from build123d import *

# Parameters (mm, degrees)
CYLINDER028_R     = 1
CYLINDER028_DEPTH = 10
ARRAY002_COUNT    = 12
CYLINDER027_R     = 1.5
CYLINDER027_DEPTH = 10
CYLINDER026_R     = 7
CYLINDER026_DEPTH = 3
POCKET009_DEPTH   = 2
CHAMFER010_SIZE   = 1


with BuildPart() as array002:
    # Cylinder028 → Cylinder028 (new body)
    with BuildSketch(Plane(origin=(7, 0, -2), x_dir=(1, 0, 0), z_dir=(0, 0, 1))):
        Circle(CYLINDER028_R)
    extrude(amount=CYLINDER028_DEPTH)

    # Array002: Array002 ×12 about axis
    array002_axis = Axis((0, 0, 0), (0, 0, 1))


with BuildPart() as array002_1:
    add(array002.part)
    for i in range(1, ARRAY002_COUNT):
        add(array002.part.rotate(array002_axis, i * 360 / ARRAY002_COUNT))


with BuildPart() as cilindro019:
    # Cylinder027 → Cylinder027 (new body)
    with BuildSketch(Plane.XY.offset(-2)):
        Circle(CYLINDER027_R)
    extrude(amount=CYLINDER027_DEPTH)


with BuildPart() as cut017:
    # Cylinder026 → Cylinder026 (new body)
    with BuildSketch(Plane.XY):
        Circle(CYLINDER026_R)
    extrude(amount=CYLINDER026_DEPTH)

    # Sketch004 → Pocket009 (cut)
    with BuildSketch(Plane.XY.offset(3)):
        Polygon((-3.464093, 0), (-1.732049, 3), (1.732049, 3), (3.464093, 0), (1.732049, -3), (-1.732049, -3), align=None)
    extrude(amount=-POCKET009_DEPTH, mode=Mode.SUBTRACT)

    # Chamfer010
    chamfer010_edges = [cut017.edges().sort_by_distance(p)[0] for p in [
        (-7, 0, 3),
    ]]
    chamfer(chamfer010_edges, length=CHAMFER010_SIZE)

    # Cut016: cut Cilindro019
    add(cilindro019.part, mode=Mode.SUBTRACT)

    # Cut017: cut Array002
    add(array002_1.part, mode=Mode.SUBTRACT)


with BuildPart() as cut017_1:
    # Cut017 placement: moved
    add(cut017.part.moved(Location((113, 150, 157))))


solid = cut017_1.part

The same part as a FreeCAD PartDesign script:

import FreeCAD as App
import Part
import Sketcher


def edges_at(feature, points):
    """Names of the edges that pass closest to the given points."""
    edges = feature.Shape.Edges
    near = lambda p: min(range(len(edges)), key=lambda i: edges[i].distToShape(Part.Vertex(*p))[0])
    return sorted({f"Edge{near(p) + 1}" for p in points})


def add_polygon(sketch, points):
    """Adds a closed chain of lines whose ends are joined by coincident constraints."""
    first, n = sketch.GeometryCount, len(points)
    for a, b in zip(points, points[1:] + points[:1]):
        sketch.addGeometry(Part.LineSegment(App.Vector(*a, 0), App.Vector(*b, 0)), False)
    for i in range(n):
        sketch.addConstraint(Sketcher.Constraint("Coincident", first + i, 2, first + (i + 1) % n, 1))

doc = App.newDocument("Part")
body = doc.addObject("PartDesign::Body", "Body")

# Sketch on XY plane
sketch1 = doc.addObject("Sketcher::SketchObject", "Sketch")
body.addObject(sketch1)
sketch1.AttachmentSupport = (doc.XY_Plane, [""])
sketch1.MapMode = "FlatFace"
sketch1.AttachmentOffset = App.Placement(App.Vector(0, 0, -2), App.Rotation())
sketch1.addGeometry(Part.Circle(App.Vector(7, 0, 0), App.Vector(0, 0, 1), 1), False)
sketch1.addConstraint([
    Sketcher.Constraint("PointOnObject", 0, 3, -1),
    Sketcher.Constraint("Diameter", 0, 2.0),
    Sketcher.Constraint("DistanceX", -1, 1, 0, 3, 7.0),
])
pad1 = doc.addObject("PartDesign::Pad", "Pad")
body.addObject(pad1)
pad1.Profile = sketch1
pad1.Length = 10
body2 = doc.addObject("PartDesign::Body", "Body001")
body2.AllowCompound = True
doc.recompute()

body2.BaseFeature = body
doc.recompute()

body3 = doc.addObject("PartDesign::Body", "Body002")
body3.BaseFeature = body
body3.Placement = App.Placement(App.Vector(0, 0, 0), App.Rotation(App.Vector(0, 0, 1), 30))
boolean = doc.addObject("PartDesign::Boolean", "Boolean")
body2.addObject(boolean)
boolean.Type = "Fuse"
boolean.addObjects([body3])
doc.recompute()

body4 = doc.addObject("PartDesign::Body", "Body003")
body4.BaseFeature = body
body4.Placement = App.Placement(App.Vector(0, 0, 0), App.Rotation(App.Vector(0, 0, 1), 60))
boolean2 = doc.addObject("PartDesign::Boolean", "Boolean001")
body2.addObject(boolean2)
boolean2.Type = "Fuse"
boolean2.addObjects([body4])
doc.recompute()

body5 = doc.addObject("PartDesign::Body", "Body004")
body5.BaseFeature = body
body5.Placement = App.Placement(App.Vector(0, 0, 0), App.Rotation(App.Vector(0, 0, 1), 90))
boolean3 = doc.addObject("PartDesign::Boolean", "Boolean002")
body2.addObject(boolean3)
boolean3.Type = "Fuse"
boolean3.addObjects([body5])
doc.recompute()

body6 = doc.addObject("PartDesign::Body", "Body005")
body6.BaseFeature = body
body6.Placement = App.Placement(App.Vector(0, 0, 0), App.Rotation(App.Vector(0, 0, 1), 120))
boolean4 = doc.addObject("PartDesign::Boolean", "Boolean003")
body2.addObject(boolean4)
boolean4.Type = "Fuse"
boolean4.addObjects([body6])
doc.recompute()

body7 = doc.addObject("PartDesign::Body", "Body006")
body7.BaseFeature = body
body7.Placement = App.Placement(App.Vector(0, 0, 0), App.Rotation(App.Vector(0, 0, 1), 150))
boolean5 = doc.addObject("PartDesign::Boolean", "Boolean004")
body2.addObject(boolean5)
boolean5.Type = "Fuse"
boolean5.addObjects([body7])
doc.recompute()

body8 = doc.addObject("PartDesign::Body", "Body007")
body8.BaseFeature = body
body8.Placement = App.Placement(App.Vector(0, 0, 0), App.Rotation(App.Vector(0, 0, 1), 180))
boolean6 = doc.addObject("PartDesign::Boolean", "Boolean005")
body2.addObject(boolean6)
boolean6.Type = "Fuse"
boolean6.addObjects([body8])
doc.recompute()

body9 = doc.addObject("PartDesign::Body", "Body008")
body9.BaseFeature = body
body9.Placement = App.Placement(App.Vector(0, 0, 0), App.Rotation(App.Vector(0, 0, 1), 210))
boolean7 = doc.addObject("PartDesign::Boolean", "Boolean006")
body2.addObject(boolean7)
boolean7.Type = "Fuse"
boolean7.addObjects([body9])
doc.recompute()

body10 = doc.addObject("PartDesign::Body", "Body009")
body10.BaseFeature = body
body10.Placement = App.Placement(App.Vector(0, 0, 0), App.Rotation(App.Vector(0, 0, 1), 240))
boolean8 = doc.addObject("PartDesign::Boolean", "Boolean007")
body2.addObject(boolean8)
boolean8.Type = "Fuse"
boolean8.addObjects([body10])
doc.recompute()

body11 = doc.addObject("PartDesign::Body", "Body010")
body11.BaseFeature = body
body11.Placement = App.Placement(App.Vector(0, 0, 0), App.Rotation(App.Vector(0, 0, 1), 270))
boolean9 = doc.addObject("PartDesign::Boolean", "Boolean008")
body2.addObject(boolean9)
boolean9.Type = "Fuse"
boolean9.addObjects([body11])
doc.recompute()

body12 = doc.addObject("PartDesign::Body", "Body011")
body12.BaseFeature = body
body12.Placement = App.Placement(App.Vector(0, 0, 0), App.Rotation(App.Vector(0, 0, 1), 300))
boolean10 = doc.addObject("PartDesign::Boolean", "Boolean009")
body2.addObject(boolean10)
boolean10.Type = "Fuse"
boolean10.addObjects([body12])
doc.recompute()

body.Placement = App.Placement(App.Vector(0, 0, 0), App.Rotation(App.Vector(0, 0, 1), 330))
boolean11 = doc.addObject("PartDesign::Boolean", "Boolean010")
body2.addObject(boolean11)
boolean11.Type = "Fuse"
boolean11.addObjects([body])
body13 = doc.addObject("PartDesign::Body", "Body012")

# Sketch on XY plane
sketch2 = doc.addObject("Sketcher::SketchObject", "Sketch001")
body13.addObject(sketch2)
sketch2.AttachmentSupport = (doc.getObject("XY_Plane012"), [""])
sketch2.MapMode = "FlatFace"
sketch2.AttachmentOffset = App.Placement(App.Vector(0, 0, -2), App.Rotation())
sketch2.addGeometry(Part.Circle(App.Vector(0, 0, 0), App.Vector(0, 0, 1), 1.5), False)
sketch2.addConstraint([
    Sketcher.Constraint("Coincident", 0, 3, -1, 1),
    Sketcher.Constraint("Diameter", 0, 3.0),
])
pad2 = doc.addObject("PartDesign::Pad", "Pad001")
body13.addObject(pad2)
pad2.Profile = sketch2
pad2.Length = 10
body14 = doc.addObject("PartDesign::Body", "Body013")

# Sketch on XY plane
sketch3 = doc.addObject("Sketcher::SketchObject", "Sketch002")
body14.addObject(sketch3)
sketch3.AttachmentSupport = (doc.getObject("XY_Plane013"), [""])
sketch3.MapMode = "FlatFace"
sketch3.addGeometry(Part.Circle(App.Vector(0, 0, 0), App.Vector(0, 0, 1), 7), False)
sketch3.addConstraint([
    Sketcher.Constraint("Coincident", 0, 3, -1, 1),
    Sketcher.Constraint("Diameter", 0, 14.0),
])
pad3 = doc.addObject("PartDesign::Pad", "Pad002")
body14.addObject(pad3)
pad3.Profile = sketch3
pad3.Length = 3

# Sketch on XY plane
sketch4 = doc.addObject("Sketcher::SketchObject", "Sketch003")
body14.addObject(sketch4)
sketch4.AttachmentSupport = (doc.getObject("XY_Plane013"), [""])
sketch4.MapMode = "FlatFace"
sketch4.AttachmentOffset = App.Placement(App.Vector(0, 0, 3), App.Rotation())
add_polygon(sketch4, [(-1.732049, 3), (-3.464093, 0), (-1.732049, -3), (1.732049, -3), (3.464093, 0), (1.732049, 3)])  # lines 0-5
sketch4.addConstraint([
    Sketcher.Constraint("Horizontal", 2),
    Sketcher.Constraint("Horizontal", 5),
    Sketcher.Constraint("Symmetric", 0, 2, 3, 2, -1, 1),
    Sketcher.Constraint("Symmetric", 1, 2, 4, 2, -1, 1),
    Sketcher.Constraint("PointOnObject", 0, 2, -1),
    Sketcher.Constraint("Parallel", 0, 3),
    Sketcher.Constraint("Vertical", 2, 2, 4, 2),
    Sketcher.Constraint("DistanceY", 1, 2, -1, 1, 3.0),
    Sketcher.Constraint("Distance", 0, 3.464098),
    Sketcher.Constraint("DistanceX", 2, 1, 2, 2, 3.464098),
])
pocket1 = doc.addObject("PartDesign::Pocket", "Pocket")
body14.addObject(pocket1)
pocket1.Profile = sketch4
pocket1.Length = 2
doc.recompute()

chamfer = doc.addObject("PartDesign::Chamfer", "Chamfer")
body14.addObject(chamfer)
chamfer.Base = (pocket1, edges_at(pocket1, [(-7, 0, 3)]))
chamfer.Size = 1
doc.recompute()

boolean12 = doc.addObject("PartDesign::Boolean", "Boolean011")
body14.addObject(boolean12)
boolean12.Type = "Cut"
boolean12.addObjects([body13])
doc.recompute()

boolean13 = doc.addObject("PartDesign::Boolean", "Boolean012")
body14.addObject(boolean13)
boolean13.Type = "Cut"
boolean13.addObjects([body2])
body15 = doc.addObject("PartDesign::Body", "Body014")
doc.recompute()

body14.Placement = App.Placement(App.Vector(113, 150, 157), App.Rotation(App.Vector(0, 0, 1), 0))
boolean14 = doc.addObject("PartDesign::Boolean", "Boolean013")
body15.addObject(boolean14)
boolean14.Type = "Fuse"
boolean14.addObjects([body14])

doc.recompute()
